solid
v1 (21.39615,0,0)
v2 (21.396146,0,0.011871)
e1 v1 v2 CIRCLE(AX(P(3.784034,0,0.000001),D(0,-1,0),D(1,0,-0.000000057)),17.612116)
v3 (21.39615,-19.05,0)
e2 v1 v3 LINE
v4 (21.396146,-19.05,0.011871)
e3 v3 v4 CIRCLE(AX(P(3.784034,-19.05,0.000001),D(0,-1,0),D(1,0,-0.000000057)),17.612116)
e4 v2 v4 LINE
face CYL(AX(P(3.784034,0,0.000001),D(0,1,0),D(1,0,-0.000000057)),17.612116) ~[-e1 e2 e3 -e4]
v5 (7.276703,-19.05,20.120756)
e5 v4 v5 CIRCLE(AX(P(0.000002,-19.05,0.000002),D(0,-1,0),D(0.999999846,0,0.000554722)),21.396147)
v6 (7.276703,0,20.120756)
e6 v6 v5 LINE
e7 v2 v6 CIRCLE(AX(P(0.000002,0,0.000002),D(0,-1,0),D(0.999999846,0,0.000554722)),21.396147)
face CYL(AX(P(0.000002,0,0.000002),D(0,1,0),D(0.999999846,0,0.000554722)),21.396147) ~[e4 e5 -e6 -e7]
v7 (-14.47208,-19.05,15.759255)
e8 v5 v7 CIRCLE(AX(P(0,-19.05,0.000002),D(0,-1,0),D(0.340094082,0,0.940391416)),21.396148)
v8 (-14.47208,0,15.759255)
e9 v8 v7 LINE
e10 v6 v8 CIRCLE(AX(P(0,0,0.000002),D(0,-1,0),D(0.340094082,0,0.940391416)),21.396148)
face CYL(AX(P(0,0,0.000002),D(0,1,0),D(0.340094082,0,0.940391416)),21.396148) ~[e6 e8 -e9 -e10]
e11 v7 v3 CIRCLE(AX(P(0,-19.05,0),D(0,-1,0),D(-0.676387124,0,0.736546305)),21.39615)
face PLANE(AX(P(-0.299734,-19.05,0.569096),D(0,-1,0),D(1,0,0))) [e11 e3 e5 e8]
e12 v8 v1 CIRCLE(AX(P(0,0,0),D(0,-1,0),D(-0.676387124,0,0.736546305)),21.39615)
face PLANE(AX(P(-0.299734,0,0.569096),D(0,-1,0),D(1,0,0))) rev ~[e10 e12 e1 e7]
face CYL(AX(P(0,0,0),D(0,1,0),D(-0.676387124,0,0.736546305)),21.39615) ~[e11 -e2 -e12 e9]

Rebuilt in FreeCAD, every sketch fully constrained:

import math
import FreeCAD as App
import Part
import Sketcher

V = App.Vector
Q = App.Units.Quantity

doc = App.newDocument("Part")
body = doc.addObject("PartDesign::Body", "Body")

sketch1 = body.newObject("Sketcher::SketchObject", "Sketch")
sketch1.AttachmentSupport = (doc.getObject("XZ_Plane"), [""])
sketch1.MapMode = "FlatFace"
sketch1.addGeometry([
    Part.ArcOfCircle(Part.Circle(V(0, 0, 0), V(0, 0, 1), 21.396), math.radians(70), math.radians(133)),
    Part.ArcOfCircle(Part.Circle(V(0, 0, 0), V(0, 0, 1), 21.396), math.radians(133), math.radians(360)),
    Part.ArcOfCircle(Part.Circle(V(3.784, 0, 0), V(0, 0, 1), 17.612), math.radians(0), math.radians(0.04)),
    Part.ArcOfCircle(Part.Circle(V(0, 0, 0), V(0, 0, 1), 21.396), math.radians(0), math.radians(70)),
], False)
sketch1.addConstraint([
    Sketcher.Constraint("Tangent", 0, 2, 1, 1),
    Sketcher.Constraint("Tangent", 1, 2, 2, 1),
    Sketcher.Constraint("Coincident", 2, 2, 3, 1),
    Sketcher.Constraint("Tangent", 3, 2, 0, 1),
    Sketcher.Constraint("Coincident", 0, 3, -1, 1),
    Sketcher.Constraint("Equal", 0, 3),
    Sketcher.Constraint("PointOnObject", 2, 3, -1),
    Sketcher.Constraint("Radius", 1, 21.39615),
    Sketcher.Constraint("Radius", 2, 17.612116),
    Sketcher.Constraint("DistanceX", 3, 3, 3, 2, 7.276701),
    Sketcher.Constraint("DistanceY", 0, 2, 3, 2, 4.361501),
    Sketcher.Constraint("DistanceY", -1, 1, 2, 2, 0.011871),
])
pad1 = body.newObject("PartDesign::Pad", "Pad")
pad1.Profile = sketch1
pad1.Length = Q("0.75 in")

doc.recompute()
